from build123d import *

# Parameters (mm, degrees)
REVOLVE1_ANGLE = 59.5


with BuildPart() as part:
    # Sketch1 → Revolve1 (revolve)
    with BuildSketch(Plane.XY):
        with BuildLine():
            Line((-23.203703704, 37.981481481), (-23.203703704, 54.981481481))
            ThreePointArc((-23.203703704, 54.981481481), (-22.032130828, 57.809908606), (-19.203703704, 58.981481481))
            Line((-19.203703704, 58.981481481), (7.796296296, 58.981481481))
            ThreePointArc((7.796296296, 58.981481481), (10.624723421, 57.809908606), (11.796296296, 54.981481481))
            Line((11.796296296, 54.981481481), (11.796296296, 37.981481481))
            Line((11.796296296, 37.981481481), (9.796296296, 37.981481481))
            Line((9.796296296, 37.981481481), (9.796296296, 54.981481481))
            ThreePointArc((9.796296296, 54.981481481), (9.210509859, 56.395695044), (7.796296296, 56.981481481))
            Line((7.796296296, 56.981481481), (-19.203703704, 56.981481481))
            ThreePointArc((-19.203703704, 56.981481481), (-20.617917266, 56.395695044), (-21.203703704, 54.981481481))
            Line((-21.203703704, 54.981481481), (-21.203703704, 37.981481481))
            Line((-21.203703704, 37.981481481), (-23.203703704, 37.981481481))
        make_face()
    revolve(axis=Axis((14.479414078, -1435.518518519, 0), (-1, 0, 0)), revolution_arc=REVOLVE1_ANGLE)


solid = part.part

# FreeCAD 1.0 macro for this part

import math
import FreeCAD as App
import Part
import Sketcher
Q = App.Units.Quantity

doc = App.newDocument("Part")
body = doc.addObject("PartDesign::Body", "Body")

# Sketch on XY plane
sketch1 = doc.addObject("Sketcher::SketchObject", "Sketch")
body.addObject(sketch1)
sketch1.AttachmentSupport = (doc.XY_Plane, [""])
sketch1.MapMode = "FlatFace"
sketch1.addGeometry(Part.LineSegment(App.Vector(-23.203704, 54.981481, 0), App.Vector(-23.203704, 37.981481, 0)), False)
sketch1.addGeometry(Part.LineSegment(App.Vector(-23.203704, 37.981481, 0), App.Vector(-21.203704, 37.981481, 0)), False)
sketch1.addGeometry(Part.LineSegment(App.Vector(-21.203704, 37.981481, 0), App.Vector(-21.203704, 54.981481, 0)), False)
sketch1.addGeometry(Part.ArcOfCircle(Part.Circle(App.Vector(-19.203704, 54.981481, 0), App.Vector(0, 0, 1), 2), math.radians(90), math.radians(180)), False)
sketch1.addGeometry(Part.LineSegment(App.Vector(-19.203704, 56.981481, 0), App.Vector(7.796296, 56.981481, 0)), False)
sketch1.addGeometry(Part.ArcOfCircle(Part.Circle(App.Vector(7.796296, 54.981481, 0), App.Vector(0, 0, 1), 2), math.radians(0), math.radians(90)), False)
sketch1.addGeometry(Part.LineSegment(App.Vector(9.796296, 54.981481, 0), App.Vector(9.796296, 37.981481, 0)), False)
sketch1.addGeometry(Part.LineSegment(App.Vector(9.796296, 37.981481, 0), App.Vector(11.796296, 37.981481, 0)), False)
sketch1.addGeometry(Part.LineSegment(App.Vector(11.796296, 37.981481, 0), App.Vector(11.796296, 54.981481, 0)), False)
sketch1.addGeometry(Part.ArcOfCircle(Part.Circle(App.Vector(7.796296, 54.981481, 0), App.Vector(0, 0, 1), 4), math.radians(0), math.radians(90)), False)
sketch1.addGeometry(Part.LineSegment(App.Vector(7.796296, 58.981481, 0), App.Vector(-19.203704, 58.981481, 0)), False)
sketch1.addGeometry(Part.ArcOfCircle(Part.Circle(App.Vector(-19.203704, 54.981481, 0), App.Vector(0, 0, 1), 4), math.radians(90), math.radians(180)), False)
sketch1.addGeometry(Part.LineSegment(App.Vector(11.796296, -1435.518519, 0), App.Vector(-23.203704, -1435.518519, 0)), True)  # axis
sketch1.addConstraint(Sketcher.Constraint("Coincident", 0, 2, 1, 1))
sketch1.addConstraint(Sketcher.Constraint("Coincident", 1, 2, 2, 1))
sketch1.addConstraint(Sketcher.Constraint("Tangent", 2, 2, 3, 2))
sketch1.addConstraint(Sketcher.Constraint("Tangent", 3, 1, 4, 1))
sketch1.addConstraint(Sketcher.Constraint("Tangent", 4, 2, 5, 2))
sketch1.addConstraint(Sketcher.Constraint("Tangent", 5, 1, 6, 1))
sketch1.addConstraint(Sketcher.Constraint("Coincident", 6, 2, 7, 1))
sketch1.addConstraint(Sketcher.Constraint("Coincident", 7, 2, 8, 1))
sketch1.addConstraint(Sketcher.Constraint("Tangent", 8, 2, 9, 1))
sketch1.addConstraint(Sketcher.Constraint("Tangent", 9, 2, 10, 1))
sketch1.addConstraint(Sketcher.Constraint("Tangent", 10, 2, 11, 1))
sketch1.addConstraint(Sketcher.Constraint("Tangent", 11, 2, 0, 1))
sketch1.addConstraint(Sketcher.Constraint("Vertical", 0))
sketch1.addConstraint(Sketcher.Constraint("Horizontal", 1))
sketch1.addConstraint(Sketcher.Constraint("Vertical", 2))
sketch1.addConstraint(Sketcher.Constraint("Horizontal", 4))
sketch1.addConstraint(Sketcher.Constraint("Vertical", 6))
sketch1.addConstraint(Sketcher.Constraint("Horizontal", 7))
sketch1.addConstraint(Sketcher.Constraint("Vertical", 8))
sketch1.addConstraint(Sketcher.Constraint("Horizontal", 10))
sketch1.addConstraint(Sketcher.Constraint("Horizontal", 12))
sketch1.addConstraint(Sketcher.Constraint("Coincident", 9, 3, 5, 3))
sketch1.addConstraint(Sketcher.Constraint("Coincident", 11, 3, 3, 3))
sketch1.addConstraint(Sketcher.Constraint("Equal", 3, 5))
sketch1.addConstraint(Sketcher.Constraint("Horizontal", 1, 2, 6, 2))
sketch1.addConstraint(Sketcher.Constraint("Vertical", 8, 2, 12, 1))
sketch1.addConstraint(Sketcher.Constraint("Vertical", 11, 2, 12, 2))
sketch1.addConstraint(Sketcher.Constraint("Radius", 3, Q("2 mm")))
sketch1.addConstraint(Sketcher.Constraint("Radius", 9, Q("4 mm")))
sketch1.addConstraint(Sketcher.Constraint("DistanceX", 4, 1, 4, 2, Q("27 mm")))
sketch1.addConstraint(Sketcher.Constraint("DistanceY", 0, 2, 0, 1, Q("17 mm")))
sketch1.addConstraint(Sketcher.Constraint("DistanceY", 12, 1, 7, 2, Q("1473.5 mm")))
sketch1.addConstraint(Sketcher.Constraint("DistanceY", -1, 1, 3, 3, Q("54.981481 mm")))
sketch1.addConstraint(Sketcher.Constraint("DistanceX", 3, 3, -1, 1, Q("19.203704 mm")))
revolution = doc.addObject("PartDesign::Revolution", "Revolution")
body.addObject(revolution)
revolution.Profile = sketch1
revolution.ReferenceAxis = (sketch1, ["Axis0"])
revolution.Angle = 59.5

doc.recompute()
